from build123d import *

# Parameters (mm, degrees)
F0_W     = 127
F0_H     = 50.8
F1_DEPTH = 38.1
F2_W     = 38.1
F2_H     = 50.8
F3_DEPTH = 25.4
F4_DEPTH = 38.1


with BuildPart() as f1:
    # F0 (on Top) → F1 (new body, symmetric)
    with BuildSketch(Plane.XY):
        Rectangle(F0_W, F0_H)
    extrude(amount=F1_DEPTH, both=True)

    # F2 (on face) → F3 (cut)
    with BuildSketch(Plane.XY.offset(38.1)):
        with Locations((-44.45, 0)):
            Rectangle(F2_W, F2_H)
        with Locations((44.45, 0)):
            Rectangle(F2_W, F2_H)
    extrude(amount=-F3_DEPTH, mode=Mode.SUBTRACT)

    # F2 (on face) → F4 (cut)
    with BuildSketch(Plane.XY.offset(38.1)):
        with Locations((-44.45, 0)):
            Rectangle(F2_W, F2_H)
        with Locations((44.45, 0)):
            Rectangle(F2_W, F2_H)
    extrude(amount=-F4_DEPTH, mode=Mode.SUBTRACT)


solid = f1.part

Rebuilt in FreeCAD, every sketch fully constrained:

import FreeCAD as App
import Part
import Sketcher

V = App.Vector
Q = App.Units.Quantity

doc = App.newDocument("Part")
body = doc.addObject("PartDesign::Body", "Body")

# Sketch on XY plane
sketch1 = body.newObject("Sketcher::SketchObject", "Sketch")
sketch1.AttachmentSupport = (doc.getObject("XY_Plane"), [""])
sketch1.MapMode = "FlatFace"
sketch1.addGeometry([
    Part.LineSegment(V(-64, 25, 0), V(-64, -25, 0)),
    Part.LineSegment(V(-64, -25, 0), V(64, -25, 0)),
    Part.LineSegment(V(64, -25, 0), V(64, 25, 0)),
    Part.LineSegment(V(64, 25, 0), V(-64, 25, 0)),
], False)
sketch1.addConstraint([
    Sketcher.Constraint("Coincident", 0, 2, 1, 1),
    Sketcher.Constraint("Coincident", 1, 2, 2, 1),
    Sketcher.Constraint("Coincident", 2, 2, 3, 1),
    Sketcher.Constraint("Coincident", 3, 2, 0, 1),
    Sketcher.Constraint("Vertical", 0),
    Sketcher.Constraint("Horizontal", 1),
    Sketcher.Constraint("Vertical", 2),
    Sketcher.Constraint("Horizontal", 3),
    Sketcher.Constraint("Symmetric", 0, 2, 2, 2, -1, 1),
    Sketcher.Constraint("DistanceX", 1, 1, 1, 2, Q("5 in")),
    Sketcher.Constraint("DistanceY", 0, 2, 0, 1, Q("2 in")),
])
pad1 = body.newObject("PartDesign::Pad", "Pad")
pad1.Profile = sketch1
pad1.Length = Q("3 in")
pad1.Midplane = True

# Sketch on XY plane
sketch2 = body.newObject("Sketcher::SketchObject", "Sketch001")
sketch2.AttachmentSupport = (doc.getObject("XY_Plane"), [""])
sketch2.MapMode = "FlatFace"
sketch2.AttachmentOffset = App.Placement(V(0, 0, 1.5 * 25.4), App.Rotation())
sketch2.addGeometry([
    Part.LineSegment(V(-64, 25, 0), V(-64, -25, 0)),  # 0
    Part.LineSegment(V(-64, -25, 0), V(-25, -25, 0)),  # 1
    Part.LineSegment(V(-25, -25, 0), V(-25, 25, 0)),  # 2
    Part.LineSegment(V(-25, 25, 0), V(-64, 25, 0)),  # 3
    Part.LineSegment(V(25, 25, 0), V(25, -25, 0)),  # 4
    Part.LineSegment(V(25, -25, 0), V(64, -25, 0)),  # 5
    Part.LineSegment(V(64, -25, 0), V(64, 25, 0)),  # 6
    Part.LineSegment(V(64, 25, 0), V(25, 25, 0)),  # 7
], False)
sketch2.addConstraint([
    Sketcher.Constraint("Coincident", 0, 2, 1, 1),
    Sketcher.Constraint("Coincident", 1, 2, 2, 1),
    Sketcher.Constraint("Coincident", 2, 2, 3, 1),
    Sketcher.Constraint("Coincident", 3, 2, 0, 1),
    Sketcher.Constraint("Coincident", 4, 2, 5, 1),
    Sketcher.Constraint("Coincident", 5, 2, 6, 1),
    Sketcher.Constraint("Coincident", 6, 2, 7, 1),
    Sketcher.Constraint("Coincident", 7, 2, 4, 1),
    Sketcher.Constraint("Vertical", 0),
    Sketcher.Constraint("Horizontal", 1),
    Sketcher.Constraint("Vertical", 2),
    Sketcher.Constraint("Horizontal", 3),
    Sketcher.Constraint("Vertical", 4),
    Sketcher.Constraint("Horizontal", 5),
    Sketcher.Constraint("Vertical", 6),
    Sketcher.Constraint("Horizontal", 7),
    Sketcher.Constraint("Symmetric", 2, 2, 4, 2, -1, 1),
    Sketcher.Constraint("Symmetric", 0, 2, 6, 2, -1, 1),
    Sketcher.Constraint("Horizontal", 1, 2, 4, 2),
    Sketcher.Constraint("DistanceY", 0, 2, 0, 1, Q("2 in")),
    Sketcher.Constraint("DistanceX", 1, 1, 1, 2, Q("1.5 in")),
    Sketcher.Constraint("DistanceX", 1, 2, -1, 1, Q("1 in")),
])
pocket1 = body.newObject("PartDesign::Pocket", "Pocket")
pocket1.Profile = sketch2
pocket1.Length = Q("1 in")

# Sketch on XY plane
sketch3 = body.newObject("Sketcher::SketchObject", "Sketch002")
sketch3.AttachmentSupport = (doc.getObject("XY_Plane"), [""])
sketch3.MapMode = "FlatFace"
sketch3.AttachmentOffset = App.Placement(V(0, 0, 1.5 * 25.4), App.Rotation())
sketch3.addGeometry([
    Part.LineSegment(V(-64, 25, 0), V(-64, -25, 0)),  # 0
    Part.LineSegment(V(-64, -25, 0), V(-25, -25, 0)),  # 1
    Part.LineSegment(V(-25, -25, 0), V(-25, 25, 0)),  # 2
    Part.LineSegment(V(-25, 25, 0), V(-64, 25, 0)),  # 3
    Part.LineSegment(V(25, 25, 0), V(25, -25, 0)),  # 4
    Part.LineSegment(V(25, -25, 0), V(64, -25, 0)),  # 5
    Part.LineSegment(V(64, -25, 0), V(64, 25, 0)),  # 6
    Part.LineSegment(V(64, 25, 0), V(25, 25, 0)),  # 7
], False)
sketch3.addConstraint([
    Sketcher.Constraint("Coincident", 0, 2, 1, 1),
    Sketcher.Constraint("Coincident", 1, 2, 2, 1),
    Sketcher.Constraint("Coincident", 2, 2, 3, 1),
    Sketcher.Constraint("Coincident", 3, 2, 0, 1),
    Sketcher.Constraint("Coincident", 4, 2, 5, 1),
    Sketcher.Constraint("Coincident", 5, 2, 6, 1),
    Sketcher.Constraint("Coincident", 6, 2, 7, 1),
    Sketcher.Constraint("Coincident", 7, 2, 4, 1),
    Sketcher.Constraint("Vertical", 0),
    Sketcher.Constraint("Horizontal", 1),
    Sketcher.Constraint("Vertical", 2),
    Sketcher.Constraint("Horizontal", 3),
    Sketcher.Constraint("Vertical", 4),
    Sketcher.Constraint("Horizontal", 5),
    Sketcher.Constraint("Vertical", 6),
    Sketcher.Constraint("Horizontal", 7),
    Sketcher.Constraint("Symmetric", 2, 2, 4, 2, -1, 1),
    Sketcher.Constraint("Symmetric", 0, 2, 6, 2, -1, 1),
    Sketcher.Constraint("Horizontal", 1, 2, 4, 2),
    Sketcher.Constraint("DistanceY", 0, 2, 0, 1, Q("2 in")),
    Sketcher.Constraint("DistanceX", 1, 1, 1, 2, Q("1.5 in")),
    Sketcher.Constraint("DistanceX", 1, 2, -1, 1, Q("1 in")),
])
pocket2 = body.newObject("PartDesign::Pocket", "Pocket001")
pocket2.Profile = sketch3
pocket2.Length = Q("1.5 in")

doc.recompute()
